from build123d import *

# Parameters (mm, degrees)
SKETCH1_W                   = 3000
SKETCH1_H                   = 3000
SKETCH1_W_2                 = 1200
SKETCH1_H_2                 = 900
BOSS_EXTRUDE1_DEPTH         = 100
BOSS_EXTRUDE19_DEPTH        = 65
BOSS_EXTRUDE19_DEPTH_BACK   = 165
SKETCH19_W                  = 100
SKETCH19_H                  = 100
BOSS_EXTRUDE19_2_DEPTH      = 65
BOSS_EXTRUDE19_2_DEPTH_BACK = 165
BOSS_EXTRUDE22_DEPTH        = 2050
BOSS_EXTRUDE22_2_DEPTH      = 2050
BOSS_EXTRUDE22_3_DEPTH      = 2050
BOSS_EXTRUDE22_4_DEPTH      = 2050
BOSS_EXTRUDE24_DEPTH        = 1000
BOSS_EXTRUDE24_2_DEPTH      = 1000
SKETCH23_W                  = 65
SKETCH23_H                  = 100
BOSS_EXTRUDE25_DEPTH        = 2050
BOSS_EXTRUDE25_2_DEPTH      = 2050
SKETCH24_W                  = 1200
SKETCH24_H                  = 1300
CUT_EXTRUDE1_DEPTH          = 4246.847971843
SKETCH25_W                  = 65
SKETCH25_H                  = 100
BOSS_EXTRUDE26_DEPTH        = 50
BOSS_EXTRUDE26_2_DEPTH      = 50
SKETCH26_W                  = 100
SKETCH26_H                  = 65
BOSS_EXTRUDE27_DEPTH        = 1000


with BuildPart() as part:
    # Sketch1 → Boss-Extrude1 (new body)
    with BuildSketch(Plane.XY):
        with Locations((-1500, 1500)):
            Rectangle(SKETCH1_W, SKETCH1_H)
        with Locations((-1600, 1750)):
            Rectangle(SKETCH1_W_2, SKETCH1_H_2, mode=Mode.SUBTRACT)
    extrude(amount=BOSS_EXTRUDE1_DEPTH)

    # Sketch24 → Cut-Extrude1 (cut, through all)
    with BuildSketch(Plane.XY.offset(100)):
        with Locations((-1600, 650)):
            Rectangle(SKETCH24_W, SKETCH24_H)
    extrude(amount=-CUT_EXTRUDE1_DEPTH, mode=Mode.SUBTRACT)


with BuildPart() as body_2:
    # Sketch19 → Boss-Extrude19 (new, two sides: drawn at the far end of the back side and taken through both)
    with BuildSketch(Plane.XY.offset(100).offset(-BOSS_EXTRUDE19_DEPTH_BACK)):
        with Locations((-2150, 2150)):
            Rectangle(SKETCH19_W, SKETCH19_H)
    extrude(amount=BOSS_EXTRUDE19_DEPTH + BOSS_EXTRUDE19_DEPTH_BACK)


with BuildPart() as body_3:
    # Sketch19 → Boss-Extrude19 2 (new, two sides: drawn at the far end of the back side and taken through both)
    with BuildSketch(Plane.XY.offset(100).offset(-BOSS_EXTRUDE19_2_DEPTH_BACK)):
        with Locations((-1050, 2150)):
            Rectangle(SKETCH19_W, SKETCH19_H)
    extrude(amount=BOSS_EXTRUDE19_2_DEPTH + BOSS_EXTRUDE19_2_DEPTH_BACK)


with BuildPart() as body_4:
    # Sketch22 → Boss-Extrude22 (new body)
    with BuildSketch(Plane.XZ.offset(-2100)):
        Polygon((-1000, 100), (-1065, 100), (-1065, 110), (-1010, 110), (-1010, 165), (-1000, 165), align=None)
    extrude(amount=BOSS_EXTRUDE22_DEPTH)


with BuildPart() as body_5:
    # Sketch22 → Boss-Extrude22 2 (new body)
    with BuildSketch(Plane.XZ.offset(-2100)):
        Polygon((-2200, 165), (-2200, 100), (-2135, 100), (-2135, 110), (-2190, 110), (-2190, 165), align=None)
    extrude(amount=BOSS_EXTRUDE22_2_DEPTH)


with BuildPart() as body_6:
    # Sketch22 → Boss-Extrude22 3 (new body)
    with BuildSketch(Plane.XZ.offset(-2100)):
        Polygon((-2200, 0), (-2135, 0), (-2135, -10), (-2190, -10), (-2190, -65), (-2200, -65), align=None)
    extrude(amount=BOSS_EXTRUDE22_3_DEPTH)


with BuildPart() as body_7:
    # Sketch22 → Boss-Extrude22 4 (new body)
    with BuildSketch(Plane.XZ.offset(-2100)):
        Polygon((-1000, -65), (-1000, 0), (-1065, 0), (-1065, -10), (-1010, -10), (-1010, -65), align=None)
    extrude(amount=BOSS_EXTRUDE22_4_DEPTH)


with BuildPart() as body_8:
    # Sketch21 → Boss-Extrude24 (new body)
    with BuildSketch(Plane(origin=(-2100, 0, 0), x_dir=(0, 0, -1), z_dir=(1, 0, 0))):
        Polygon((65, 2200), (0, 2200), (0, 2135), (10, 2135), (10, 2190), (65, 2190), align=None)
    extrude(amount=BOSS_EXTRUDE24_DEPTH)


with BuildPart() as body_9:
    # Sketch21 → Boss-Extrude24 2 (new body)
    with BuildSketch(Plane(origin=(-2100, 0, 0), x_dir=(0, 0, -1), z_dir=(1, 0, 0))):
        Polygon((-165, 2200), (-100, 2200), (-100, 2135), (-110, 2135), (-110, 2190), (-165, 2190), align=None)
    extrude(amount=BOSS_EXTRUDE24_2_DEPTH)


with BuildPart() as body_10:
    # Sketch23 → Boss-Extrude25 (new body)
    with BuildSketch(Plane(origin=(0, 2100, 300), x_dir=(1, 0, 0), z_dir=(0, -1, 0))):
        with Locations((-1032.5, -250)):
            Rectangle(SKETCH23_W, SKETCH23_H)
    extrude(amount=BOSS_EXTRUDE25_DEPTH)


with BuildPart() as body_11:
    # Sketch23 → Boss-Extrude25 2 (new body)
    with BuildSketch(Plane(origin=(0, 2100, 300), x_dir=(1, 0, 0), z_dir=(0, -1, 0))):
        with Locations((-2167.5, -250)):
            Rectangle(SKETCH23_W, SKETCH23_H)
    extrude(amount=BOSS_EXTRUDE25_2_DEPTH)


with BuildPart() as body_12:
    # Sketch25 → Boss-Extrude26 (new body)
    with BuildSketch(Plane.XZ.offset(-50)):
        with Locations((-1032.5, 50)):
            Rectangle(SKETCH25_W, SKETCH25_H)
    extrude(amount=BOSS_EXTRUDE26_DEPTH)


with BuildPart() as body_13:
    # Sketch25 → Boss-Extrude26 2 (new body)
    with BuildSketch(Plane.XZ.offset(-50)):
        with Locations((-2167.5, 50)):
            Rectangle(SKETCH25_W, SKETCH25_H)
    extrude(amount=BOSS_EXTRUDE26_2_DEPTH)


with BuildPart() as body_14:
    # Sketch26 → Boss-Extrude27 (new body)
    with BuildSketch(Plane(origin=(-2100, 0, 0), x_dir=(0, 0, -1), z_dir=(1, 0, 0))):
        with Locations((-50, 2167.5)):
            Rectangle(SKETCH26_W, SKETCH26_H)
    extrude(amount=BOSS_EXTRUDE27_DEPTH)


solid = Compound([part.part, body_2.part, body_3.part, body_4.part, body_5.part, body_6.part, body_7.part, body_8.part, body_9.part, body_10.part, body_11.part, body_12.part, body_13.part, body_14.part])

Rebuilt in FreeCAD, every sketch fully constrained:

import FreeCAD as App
import Part
import Sketcher

doc = App.newDocument("Part")
body = doc.addObject("PartDesign::Body", "Body")

# Sketch on XY plane
sketch1 = body.newObject("Sketcher::SketchObject", "Sketch")
sketch1.AttachmentSupport = (doc.getObject("XY_Plane"), [""])
sketch1.MapMode = "FlatFace"
sketch1.addGeometry([
    Part.LineSegment(App.Vector(-3000, 3000, 0), App.Vector(-3000, 0, 0)),  # 0
    Part.LineSegment(App.Vector(-3000, 0, 0), App.Vector(0, 0, 0)),  # 1
    Part.LineSegment(App.Vector(0, 0, 0), App.Vector(0, 3000, 0)),  # 2
    Part.LineSegment(App.Vector(0, 3000, 0), App.Vector(-3000, 3000, 0)),  # 3
    Part.LineSegment(App.Vector(-1000, 1300, 0), App.Vector(-2200, 1300, 0)),  # 4
    Part.LineSegment(App.Vector(-2200, 1300, 0), App.Vector(-2200, 2200, 0)),  # 5
    Part.LineSegment(App.Vector(-2200, 2200, 0), App.Vector(-1000, 2200, 0)),  # 6
    Part.LineSegment(App.Vector(-1000, 2200, 0), App.Vector(-1000, 1300, 0)),  # 7
], False)
sketch1.addConstraint([
    Sketcher.Constraint("Coincident", 0, 2, 1, 1),
    Sketcher.Constraint("Coincident", 1, 2, 2, 1),
    Sketcher.Constraint("Coincident", 2, 2, 3, 1),
    Sketcher.Constraint("Coincident", 3, 2, 0, 1),
    Sketcher.Constraint("Coincident", 4, 2, 5, 1),
    Sketcher.Constraint("Coincident", 5, 2, 6, 1),
    Sketcher.Constraint("Coincident", 6, 2, 7, 1),
    Sketcher.Constraint("Coincident", 7, 2, 4, 1),
    Sketcher.Constraint("Vertical", 0),
    Sketcher.Constraint("Horizontal", 1),
    Sketcher.Constraint("Vertical", 2),
    Sketcher.Constraint("Horizontal", 3),
    Sketcher.Constraint("Horizontal", 4),
    Sketcher.Constraint("Vertical", 5),
    Sketcher.Constraint("Horizontal", 6),
    Sketcher.Constraint("Vertical", 7),
    Sketcher.Constraint("Coincident", 1, 2, -1, 1),
    Sketcher.Constraint("Equal", 3, 0),
    Sketcher.Constraint("DistanceX", 1, 1, 1, 2, 3000.0),
    Sketcher.Constraint("DistanceX", 4, 2, 4, 1, 1200.0),
    Sketcher.Constraint("DistanceY", 5, 1, 5, 2, 900.0),
    Sketcher.Constraint("DistanceX", 4, 2, -1, 1, 2200.0),
    Sketcher.Constraint("DistanceY", -1, 1, 4, 2, 1300.0),
])
pad1 = body.newObject("PartDesign::Pad", "Pad")
pad1.Profile = sketch1
pad1.Length = 100

# Sketch on XY plane
sketch2 = body.newObject("Sketcher::SketchObject", "Sketch001")
sketch2.AttachmentSupport = (doc.getObject("XY_Plane"), [""])
sketch2.MapMode = "FlatFace"
sketch2.AttachmentOffset = App.Placement(App.Vector(0, 0, 100), App.Rotation())
sketch2.addGeometry([
    Part.LineSegment(App.Vector(-2200, 1300, 0), App.Vector(-2200, 0, 0)),
    Part.LineSegment(App.Vector(-2200, 0, 0), App.Vector(-1000, 0, 0)),
    Part.LineSegment(App.Vector(-1000, 0, 0), App.Vector(-1000, 1300, 0)),
    Part.LineSegment(App.Vector(-1000, 1300, 0), App.Vector(-2200, 1300, 0)),
], False)
sketch2.addConstraint([
    Sketcher.Constraint("Coincident", 0, 2, 1, 1),
    Sketcher.Constraint("Coincident", 1, 2, 2, 1),
    Sketcher.Constraint("Coincident", 2, 2, 3, 1),
    Sketcher.Constraint("Coincident", 3, 2, 0, 1),
    Sketcher.Constraint("Vertical", 0),
    Sketcher.Constraint("Horizontal", 1),
    Sketcher.Constraint("Vertical", 2),
    Sketcher.Constraint("Horizontal", 3),
    Sketcher.Constraint("PointOnObject", 0, 2, -1),
    Sketcher.Constraint("DistanceX", 1, 1, 1, 2, 1200.0),
    Sketcher.Constraint("DistanceY", 0, 2, 0, 1, 1300.0),
    Sketcher.Constraint("DistanceX", 0, 2, -1, 1, 2200.0),
])
pocket1 = body.newObject("PartDesign::Pocket", "Pocket")
pocket1.Profile = sketch2
pocket1.Type = "ThroughAll"
body2 = doc.addObject("PartDesign::Body", "Body001")

# Sketch on XY plane
sketch3 = body2.newObject("Sketcher::SketchObject", "Sketch002")
sketch3.AttachmentSupport = (doc.getObject("XY_Plane001"), [""])
sketch3.MapMode = "FlatFace"
sketch3.AttachmentOffset = App.Placement(App.Vector(0, 0, 100), App.Rotation())
sketch3.addGeometry([
    Part.LineSegment(App.Vector(-2200, 2200, 0), App.Vector(-2200, 2100, 0)),
    Part.LineSegment(App.Vector(-2200, 2100, 0), App.Vector(-2100, 2100, 0)),
    Part.LineSegment(App.Vector(-2100, 2100, 0), App.Vector(-2100, 2200, 0)),
    Part.LineSegment(App.Vector(-2100, 2200, 0), App.Vector(-2200, 2200, 0)),
], False)
sketch3.addConstraint([
    Sketcher.Constraint("Coincident", 0, 2, 1, 1),
    Sketcher.Constraint("Coincident", 1, 2, 2, 1),
    Sketcher.Constraint("Coincident", 2, 2, 3, 1),
    Sketcher.Constraint("Coincident", 3, 2, 0, 1),
    Sketcher.Constraint("Vertical", 0),
    Sketcher.Constraint("Horizontal", 1),
    Sketcher.Constraint("Vertical", 2),
    Sketcher.Constraint("Horizontal", 3),
    Sketcher.Constraint("Equal", 3, 0),
    Sketcher.Constraint("DistanceX", 1, 1, 1, 2, 100.0),
    Sketcher.Constraint("DistanceX", 0, 2, -1, 1, 2200.0),
    Sketcher.Constraint("DistanceY", -1, 1, 0, 2, 2100.0),
])
pad2 = body2.newObject("PartDesign::Pad", "Pad001")
pad2.Profile = sketch3
pad2.Type = "TwoLengths"
pad2.Length = 65
pad2.Length2 = 165
body3 = doc.addObject("PartDesign::Body", "Body002")

# Sketch on XY plane
sketch4 = body3.newObject("Sketcher::SketchObject", "Sketch003")
sketch4.AttachmentSupport = (doc.getObject("XY_Plane002"), [""])
sketch4.MapMode = "FlatFace"
sketch4.AttachmentOffset = App.Placement(App.Vector(0, 0, 100), App.Rotation())
sketch4.addGeometry([
    Part.LineSegment(App.Vector(-1100, 2200, 0), App.Vector(-1100, 2100, 0)),
    Part.LineSegment(App.Vector(-1100, 2100, 0), App.Vector(-1000, 2100, 0)),
    Part.LineSegment(App.Vector(-1000, 2100, 0), App.Vector(-1000, 2200, 0)),
    Part.LineSegment(App.Vector(-1000, 2200, 0), App.Vector(-1100, 2200, 0)),
], False)
sketch4.addConstraint([
    Sketcher.Constraint("Coincident", 0, 2, 1, 1),
    Sketcher.Constraint("Coincident", 1, 2, 2, 1),
    Sketcher.Constraint("Coincident", 2, 2, 3, 1),
    Sketcher.Constraint("Coincident", 3, 2, 0, 1),
    Sketcher.Constraint("Vertical", 0),
    Sketcher.Constraint("Horizontal", 1),
    Sketcher.Constraint("Vertical", 2),
    Sketcher.Constraint("Horizontal", 3),
    Sketcher.Constraint("Equal", 3, 0),
    Sketcher.Constraint("DistanceX", 1, 1, 1, 2, 100.0),
    Sketcher.Constraint("DistanceX", 0, 2, -1, 1, 1100.0),
    Sketcher.Constraint("DistanceY", -1, 1, 0, 2, 2100.0),
])
pad3 = body3.newObject("PartDesign::Pad", "Pad002")
pad3.Profile = sketch4
pad3.Type = "TwoLengths"
pad3.Length = 65
pad3.Length2 = 165
body4 = doc.addObject("PartDesign::Body", "Body003")

# Sketch on XZ plane
sketch5 = body4.newObject("Sketcher::SketchObject", "Sketch004")
sketch5.AttachmentSupport = (doc.getObject("XZ_Plane003"), [""])
sketch5.MapMode = "FlatFace"
sketch5.AttachmentOffset = App.Placement(App.Vector(0, 0, -2100), App.Rotation())
sketch5.addGeometry([
    Part.LineSegment(App.Vector(-1065, 100, 0), App.Vector(-1000, 100, 0)),  # 0
    Part.LineSegment(App.Vector(-1000, 100, 0), App.Vector(-1000, 165, 0)),  # 1
    Part.LineSegment(App.Vector(-1000, 165, 0), App.Vector(-1010, 165, 0)),  # 2
    Part.LineSegment(App.Vector(-1010, 165, 0), App.Vector(-1010, 110, 0)),  # 3
    Part.LineSegment(App.Vector(-1010, 110, 0), App.Vector(-1065, 110, 0)),  # 4
    Part.LineSegment(App.Vector(-1065, 110, 0), App.Vector(-1065, 100, 0)),  # 5
], False)
sketch5.addConstraint([
    Sketcher.Constraint("Coincident", 0, 2, 1, 1),
    Sketcher.Constraint("Coincident", 1, 2, 2, 1),
    Sketcher.Constraint("Coincident", 2, 2, 3, 1),
    Sketcher.Constraint("Coincident", 3, 2, 4, 1),
    Sketcher.Constraint("Coincident", 4, 2, 5, 1),
    Sketcher.Constraint("Coincident", 5, 2, 0, 1),
    Sketcher.Constraint("Horizontal", 0),
    Sketcher.Constraint("Vertical", 1),
    Sketcher.Constraint("Horizontal", 2),
    Sketcher.Constraint("Vertical", 3),
    Sketcher.Constraint("Horizontal", 4),
    Sketcher.Constraint("Vertical", 5),
    Sketcher.Constraint("Equal", 0, 1),
    Sketcher.Constraint("Equal", 4, 3),
    Sketcher.Constraint("DistanceX", 0, 1, 0, 2, 65.0),
    Sketcher.Constraint("DistanceX", 2, 2, 2, 1, 10.0),
    Sketcher.Constraint("DistanceX", 0, 2, -1, 1, 1000.0),
    Sketcher.Constraint("DistanceY", -1, 1, 0, 2, 100.0),
])
pad4 = body4.newObject("PartDesign::Pad", "Pad003")
pad4.Profile = sketch5
pad4.Length = 2050
body5 = doc.addObject("PartDesign::Body", "Body004")

# Sketch on XZ plane
sketch6 = body5.newObject("Sketcher::SketchObject", "Sketch005")
sketch6.AttachmentSupport = (doc.getObject("XZ_Plane004"), [""])
sketch6.MapMode = "FlatFace"
sketch6.AttachmentOffset = App.Placement(App.Vector(0, 0, -2100), App.Rotation())
sketch6.addGeometry([
    Part.LineSegment(App.Vector(-2200, 165, 0), App.Vector(-2200, 100, 0)),  # 0
    Part.LineSegment(App.Vector(-2200, 100, 0), App.Vector(-2135, 100, 0)),  # 1
    Part.LineSegment(App.Vector(-2135, 100, 0), App.Vector(-2135, 110, 0)),  # 2
    Part.LineSegment(App.Vector(-2135, 110, 0), App.Vector(-2190, 110, 0)),  # 3
    Part.LineSegment(App.Vector(-2190, 110, 0), App.Vector(-2190, 165, 0)),  # 4
    Part.LineSegment(App.Vector(-2190, 165, 0), App.Vector(-2200, 165, 0)),  # 5
], False)
sketch6.addConstraint([
    Sketcher.Constraint("Coincident", 0, 2, 1, 1),
    Sketcher.Constraint("Coincident", 1, 2, 2, 1),
    Sketcher.Constraint("Coincident", 2, 2, 3, 1),
    Sketcher.Constraint("Coincident", 3, 2, 4, 1),
    Sketcher.Constraint("Coincident", 4, 2, 5, 1),
    Sketcher.Constraint("Coincident", 5, 2, 0, 1),
    Sketcher.Constraint("Vertical", 0),
    Sketcher.Constraint("Horizontal", 1),
    Sketcher.Constraint("Vertical", 2),
    Sketcher.Constraint("Horizontal", 3),
    Sketcher.Constraint("Vertical", 4),
    Sketcher.Constraint("Horizontal", 5),
    Sketcher.Constraint("Equal", 1, 0),
    Sketcher.Constraint("Equal", 5, 2),
    Sketcher.Constraint("DistanceX", 1, 1, 1, 2, 65.0),
    Sketcher.Constraint("DistanceX", 3, 2, 3, 1, 55.0),
    Sketcher.Constraint("DistanceX", 0, 2, -1, 1, 2200.0),
    Sketcher.Constraint("DistanceY", -1, 1, 0, 2, 100.0),
])
pad5 = body5.newObject("PartDesign::Pad", "Pad004")
pad5.Profile = sketch6
pad5.Length = 2050
body6 = doc.addObject("PartDesign::Body", "Body005")

# Sketch on XZ plane
sketch7 = body6.newObject("Sketcher::SketchObject", "Sketch006")
sketch7.AttachmentSupport = (doc.getObject("XZ_Plane005"), [""])
sketch7.MapMode = "FlatFace"
sketch7.AttachmentOffset = App.Placement(App.Vector(0, 0, -2100), App.Rotation())
sketch7.addGeometry([
    Part.LineSegment(App.Vector(-2135, 0, 0), App.Vector(-2200, 0, 0)),  # 0
    Part.LineSegment(App.Vector(-2200, 0, 0), App.Vector(-2200, -65, 0)),  # 1
    Part.LineSegment(App.Vector(-2200, -65, 0), App.Vector(-2190, -65, 0)),  # 2
    Part.LineSegment(App.Vector(-2190, -65, 0), App.Vector(-2190, -10, 0)),  # 3
    Part.LineSegment(App.Vector(-2190, -10, 0), App.Vector(-2135, -10, 0)),  # 4
    Part.LineSegment(App.Vector(-2135, -10, 0), App.Vector(-2135, 0, 0)),  # 5
], False)
sketch7.addConstraint([
    Sketcher.Constraint("Coincident", 0, 2, 1, 1),
    Sketcher.Constraint("Coincident", 1, 2, 2, 1),
    Sketcher.Constraint("Coincident", 2, 2, 3, 1),
    Sketcher.Constraint("Coincident", 3, 2, 4, 1),
    Sketcher.Constraint("Coincident", 4, 2, 5, 1),
    Sketcher.Constraint("Coincident", 5, 2, 0, 1),
    Sketcher.Constraint("Horizontal", 0),
    Sketcher.Constraint("Vertical", 1),
    Sketcher.Constraint("Horizontal", 2),
    Sketcher.Constraint("Vertical", 3),
    Sketcher.Constraint("Horizontal", 4),
    Sketcher.Constraint("Vertical", 5),
    Sketcher.Constraint("PointOnObject", 0, 2, -1),
    Sketcher.Constraint("Equal", 0, 1),
    Sketcher.Constraint("Equal", 4, 3),
    Sketcher.Constraint("DistanceX", 0, 2, 0, 1, 65.0),
    Sketcher.Constraint("DistanceX", 2, 1, 2, 2, 10.0),
    Sketcher.Constraint("DistanceX", 0, 2, -1, 1, 2200.0),
])
pad6 = body6.newObject("PartDesign::Pad", "Pad005")
pad6.Profile = sketch7
pad6.Length = 2050
body7 = doc.addObject("PartDesign::Body", "Body006")

# Sketch on XZ plane
sketch8 = body7.newObject("Sketcher::SketchObject", "Sketch007")
sketch8.AttachmentSupport = (doc.getObject("XZ_Plane006"), [""])
sketch8.MapMode = "FlatFace"
sketch8.AttachmentOffset = App.Placement(App.Vector(0, 0, -2100), App.Rotation())
sketch8.addGeometry([
    Part.LineSegment(App.Vector(-1000, -65, 0), App.Vector(-1000, 0, 0)),  # 0
    Part.LineSegment(App.Vector(-1000, 0, 0), App.Vector(-1065, 0, 0)),  # 1
    Part.LineSegment(App.Vector(-1065, 0, 0), App.Vector(-1065, -10, 0)),  # 2
    Part.LineSegment(App.Vector(-1065, -10, 0), App.Vector(-1010, -10, 0)),  # 3
    Part.LineSegment(App.Vector(-1010, -10, 0), App.Vector(-1010, -65, 0)),  # 4
    Part.LineSegment(App.Vector(-1010, -65, 0), App.Vector(-1000, -65, 0)),  # 5
], False)
sketch8.addConstraint([
    Sketcher.Constraint("Coincident", 0, 2, 1, 1),
    Sketcher.Constraint("Coincident", 1, 2, 2, 1),
    Sketcher.Constraint("Coincident", 2, 2, 3, 1),
    Sketcher.Constraint("Coincident", 3, 2, 4, 1),
    Sketcher.Constraint("Coincident", 4, 2, 5, 1),
    Sketcher.Constraint("Coincident", 5, 2, 0, 1),
    Sketcher.Constraint("Vertical", 0),
    Sketcher.Constraint("Horizontal", 1),
    Sketcher.Constraint("Vertical", 2),
    Sketcher.Constraint("Horizontal", 3),
    Sketcher.Constraint("Vertical", 4),
    Sketcher.Constraint("Horizontal", 5),
    Sketcher.Constraint("PointOnObject", 0, 2, -1),
    Sketcher.Constraint("Equal", 1, 0),
    Sketcher.Constraint("Equal", 5, 2),
    Sketcher.Constraint("DistanceX", 1, 2, 1, 1, 65.0),
    Sketcher.Constraint("DistanceX", 3, 1, 3, 2, 55.0),
    Sketcher.Constraint("DistanceX", 0, 2, -1, 1, 1000.0),
])
pad7 = body7.newObject("PartDesign::Pad", "Pad006")
pad7.Profile = sketch8
pad7.Length = 2050
body8 = doc.addObject("PartDesign::Body", "Body007")

# Sketch on YZ plane
sketch9 = body8.newObject("Sketcher::SketchObject", "Sketch008")
sketch9.AttachmentSupport = (doc.getObject("YZ_Plane007"), [""])
sketch9.MapMode = "FlatFace"
sketch9.AttachmentOffset = App.Placement(App.Vector(0, 0, -2100), App.Rotation())
sketch9.addGeometry([
    Part.LineSegment(App.Vector(2200, -65, 0), App.Vector(2200, 0, 0)),  # 0
    Part.LineSegment(App.Vector(2200, 0, 0), App.Vector(2135, 0, 0)),  # 1
    Part.LineSegment(App.Vector(2135, 0, 0), App.Vector(2135, -10, 0)),  # 2
    Part.LineSegment(App.Vector(2135, -10, 0), App.Vector(2190, -10, 0)),  # 3
    Part.LineSegment(App.Vector(2190, -10, 0), App.Vector(2190, -65, 0)),  # 4
    Part.LineSegment(App.Vector(2190, -65, 0), App.Vector(2200, -65, 0)),  # 5
], False)
sketch9.addConstraint([
    Sketcher.Constraint("Coincident", 0, 2, 1, 1),
    Sketcher.Constraint("Coincident", 1, 2, 2, 1),
    Sketcher.Constraint("Coincident", 2, 2, 3, 1),
    Sketcher.Constraint("Coincident", 3, 2, 4, 1),
    Sketcher.Constraint("Coincident", 4, 2, 5, 1),
    Sketcher.Constraint("Coincident", 5, 2, 0, 1),
    Sketcher.Constraint("Vertical", 0),
    Sketcher.Constraint("Horizontal", 1),
    Sketcher.Constraint("Vertical", 2),
    Sketcher.Constraint("Horizontal", 3),
    Sketcher.Constraint("Vertical", 4),
    Sketcher.Constraint("Horizontal", 5),
    Sketcher.Constraint("PointOnObject", 0, 2, -1),
    Sketcher.Constraint("Equal", 1, 0),
    Sketcher.Constraint("Equal", 5, 2),
    Sketcher.Constraint("DistanceX", 1, 2, 1, 1, 65.0),
    Sketcher.Constraint("DistanceX", 3, 1, 3, 2, 55.0),
    Sketcher.Constraint("DistanceX", -1, 1, 0, 2, 2200.0),
])
pad8 = body8.newObject("PartDesign::Pad", "Pad007")
pad8.Profile = sketch9
pad8.Length = 1000
body9 = doc.addObject("PartDesign::Body", "Body008")

# Sketch on YZ plane
sketch10 = body9.newObject("Sketcher::SketchObject", "Sketch009")
sketch10.AttachmentSupport = (doc.getObject("YZ_Plane008"), [""])
sketch10.MapMode = "FlatFace"
sketch10.AttachmentOffset = App.Placement(App.Vector(0, 0, -2100), App.Rotation())
sketch10.addGeometry([
    Part.LineSegment(App.Vector(2200, 100, 0), App.Vector(2200, 165, 0)),  # 0
    Part.LineSegment(App.Vector(2200, 165, 0), App.Vector(2190, 165, 0)),  # 1
    Part.LineSegment(App.Vector(2190, 165, 0), App.Vector(2190, 110, 0)),  # 2
    Part.LineSegment(App.Vector(2190, 110, 0), App.Vector(2135, 110, 0)),  # 3
    Part.LineSegment(App.Vector(2135, 110, 0), App.Vector(2135, 100, 0)),  # 4
    Part.LineSegment(App.Vector(2135, 100, 0), App.Vector(2200, 100, 0)),  # 5
], False)
sketch10.addConstraint([
    Sketcher.Constraint("Coincident", 0, 2, 1, 1),
    Sketcher.Constraint("Coincident", 1, 2, 2, 1),
    Sketcher.Constraint("Coincident", 2, 2, 3, 1),
    Sketcher.Constraint("Coincident", 3, 2, 4, 1),
    Sketcher.Constraint("Coincident", 4, 2, 5, 1),
    Sketcher.Constraint("Coincident", 5, 2, 0, 1),
    Sketcher.Constraint("Vertical", 0),
    Sketcher.Constraint("Horizontal", 1),
    Sketcher.Constraint("Vertical", 2),
    Sketcher.Constraint("Horizontal", 3),
    Sketcher.Constraint("Vertical", 4),
    Sketcher.Constraint("Horizontal", 5),
    Sketcher.Constraint("Equal", 5, 0),
    Sketcher.Constraint("Equal", 3, 2),
    Sketcher.Constraint("DistanceX", 1, 2, 1, 1, 10.0),
    Sketcher.Constraint("DistanceX", 3, 2, 3, 1, 55.0),
    Sketcher.Constraint("DistanceX", -1, 1, 0, 2, 2200.0),
    Sketcher.Constraint("DistanceY", -1, 1, 0, 2, 165.0),
])
pad9 = body9.newObject("PartDesign::Pad", "Pad008")
pad9.Profile = sketch10
pad9.Length = 1000
body10 = doc.addObject("PartDesign::Body", "Body009")

# Sketch on XZ plane
sketch11 = body10.newObject("Sketcher::SketchObject", "Sketch010")
sketch11.AttachmentSupport = (doc.getObject("XZ_Plane009"), [""])
sketch11.MapMode = "FlatFace"
sketch11.AttachmentOffset = App.Placement(App.Vector(0, 0, -2100), App.Rotation())
sketch11.addGeometry([
    Part.LineSegment(App.Vector(-1065, 100, 0), App.Vector(-1065, 0, 0)),
    Part.LineSegment(App.Vector(-1065, 0, 0), App.Vector(-1000, 0, 0)),
    Part.LineSegment(App.Vector(-1000, 0, 0), App.Vector(-1000, 100, 0)),
    Part.LineSegment(App.Vector(-1000, 100, 0), App.Vector(-1065, 100, 0)),
], False)
sketch11.addConstraint([
    Sketcher.Constraint("Coincident", 0, 2, 1, 1),
    Sketcher.Constraint("Coincident", 1, 2, 2, 1),
    Sketcher.Constraint("Coincident", 2, 2, 3, 1),
    Sketcher.Constraint("Coincident", 3, 2, 0, 1),
    Sketcher.Constraint("Vertical", 0),
    Sketcher.Constraint("Horizontal", 1),
    Sketcher.Constraint("Vertical", 2),
    Sketcher.Constraint("Horizontal", 3),
    Sketcher.Constraint("PointOnObject", 0, 2, -1),
    Sketcher.Constraint("DistanceX", 1, 1, 1, 2, 65.0),
    Sketcher.Constraint("DistanceY", 0, 2, 0, 1, 100.0),
    Sketcher.Constraint("DistanceX", 0, 2, -1, 1, 1065.0),
])
pad10 = body10.newObject("PartDesign::Pad", "Pad009")
pad10.Profile = sketch11
pad10.Length = 2050
body11 = doc.addObject("PartDesign::Body", "Body010")

# Sketch on XZ plane
sketch12 = body11.newObject("Sketcher::SketchObject", "Sketch011")
sketch12.AttachmentSupport = (doc.getObject("XZ_Plane010"), [""])
sketch12.MapMode = "FlatFace"
sketch12.AttachmentOffset = App.Placement(App.Vector(0, 0, -2100), App.Rotation())
sketch12.addGeometry([
    Part.LineSegment(App.Vector(-2200, 100, 0), App.Vector(-2200, 0, 0)),
    Part.LineSegment(App.Vector(-2200, 0, 0), App.Vector(-2135, 0, 0)),
    Part.LineSegment(App.Vector(-2135, 0, 0), App.Vector(-2135, 100, 0)),
    Part.LineSegment(App.Vector(-2135, 100, 0), App.Vector(-2200, 100, 0)),
], False)
sketch12.addConstraint([
    Sketcher.Constraint("Coincident", 0, 2, 1, 1),
    Sketcher.Constraint("Coincident", 1, 2, 2, 1),
    Sketcher.Constraint("Coincident", 2, 2, 3, 1),
    Sketcher.Constraint("Coincident", 3, 2, 0, 1),
    Sketcher.Constraint("Vertical", 0),
    Sketcher.Constraint("Horizontal", 1),
    Sketcher.Constraint("Vertical", 2),
    Sketcher.Constraint("Horizontal", 3),
    Sketcher.Constraint("PointOnObject", 0, 2, -1),
    Sketcher.Constraint("DistanceX", 1, 1, 1, 2, 65.0),
    Sketcher.Constraint("DistanceY", 0, 2, 0, 1, 100.0),
    Sketcher.Constraint("DistanceX", 0, 2, -1, 1, 2200.0),
])
pad11 = body11.newObject("PartDesign::Pad", "Pad010")
pad11.Profile = sketch12
pad11.Length = 2050
body12 = doc.addObject("PartDesign::Body", "Body011")

# Sketch on XZ plane
sketch13 = body12.newObject("Sketcher::SketchObject", "Sketch012")
sketch13.AttachmentSupport = (doc.getObject("XZ_Plane011"), [""])
sketch13.MapMode = "FlatFace"
sketch13.AttachmentOffset = App.Placement(App.Vector(0, 0, -50), App.Rotation())
sketch13.addGeometry([
    Part.LineSegment(App.Vector(-1065, 100, 0), App.Vector(-1065, 0, 0)),
    Part.LineSegment(App.Vector(-1065, 0, 0), App.Vector(-1000, 0, 0)),
    Part.LineSegment(App.Vector(-1000, 0, 0), App.Vector(-1000, 100, 0)),
    Part.LineSegment(App.Vector(-1000, 100, 0), App.Vector(-1065, 100, 0)),
], False)
sketch13.addConstraint([
    Sketcher.Constraint("Coincident", 0, 2, 1, 1),
    Sketcher.Constraint("Coincident", 1, 2, 2, 1),
    Sketcher.Constraint("Coincident", 2, 2, 3, 1),
    Sketcher.Constraint("Coincident", 3, 2, 0, 1),
    Sketcher.Constraint("Vertical", 0),
    Sketcher.Constraint("Horizontal", 1),
    Sketcher.Constraint("Vertical", 2),
    Sketcher.Constraint("Horizontal", 3),
    Sketcher.Constraint("PointOnObject", 0, 2, -1),
    Sketcher.Constraint("DistanceX", 1, 1, 1, 2, 65.0),
    Sketcher.Constraint("DistanceY", 0, 2, 0, 1, 100.0),
    Sketcher.Constraint("DistanceX", 0, 2, -1, 1, 1065.0),
])
pad12 = body12.newObject("PartDesign::Pad", "Pad011")
pad12.Profile = sketch13
pad12.Length = 50
body13 = doc.addObject("PartDesign::Body", "Body012")

# Sketch on XZ plane
sketch14 = body13.newObject("Sketcher::SketchObject", "Sketch013")
sketch14.AttachmentSupport = (doc.getObject("XZ_Plane012"), [""])
sketch14.MapMode = "FlatFace"
sketch14.AttachmentOffset = App.Placement(App.Vector(0, 0, -50), App.Rotation())
sketch14.addGeometry([
    Part.LineSegment(App.Vector(-2200, 100, 0), App.Vector(-2200, 0, 0)),
    Part.LineSegment(App.Vector(-2200, 0, 0), App.Vector(-2135, 0, 0)),
    Part.LineSegment(App.Vector(-2135, 0, 0), App.Vector(-2135, 100, 0)),
    Part.LineSegment(App.Vector(-2135, 100, 0), App.Vector(-2200, 100, 0)),
], False)
sketch14.addConstraint([
    Sketcher.Constraint("Coincident", 0, 2, 1, 1),
    Sketcher.Constraint("Coincident", 1, 2, 2, 1),
    Sketcher.Constraint("Coincident", 2, 2, 3, 1),
    Sketcher.Constraint("Coincident", 3, 2, 0, 1),
    Sketcher.Constraint("Vertical", 0),
    Sketcher.Constraint("Horizontal", 1),
    Sketcher.Constraint("Vertical", 2),
    Sketcher.Constraint("Horizontal", 3),
    Sketcher.Constraint("PointOnObject", 0, 2, -1),
    Sketcher.Constraint("DistanceX", 1, 1, 1, 2, 65.0),
    Sketcher.Constraint("DistanceY", 0, 2, 0, 1, 100.0),
    Sketcher.Constraint("DistanceX", 0, 2, -1, 1, 2200.0),
])
pad13 = body13.newObject("PartDesign::Pad", "Pad012")
pad13.Profile = sketch14
pad13.Length = 50
body14 = doc.addObject("PartDesign::Body", "Body013")

# Sketch on YZ plane
sketch15 = body14.newObject("Sketcher::SketchObject", "Sketch014")
sketch15.AttachmentSupport = (doc.getObject("YZ_Plane013"), [""])
sketch15.MapMode = "FlatFace"
sketch15.AttachmentOffset = App.Placement(App.Vector(0, 0, -2100), App.Rotation())
sketch15.addGeometry([
    Part.LineSegment(App.Vector(2200, 100, 0), App.Vector(2135, 100, 0)),
    Part.LineSegment(App.Vector(2135, 100, 0), App.Vector(2135, 0, 0)),
    Part.LineSegment(App.Vector(2135, 0, 0), App.Vector(2200, 0, 0)),
    Part.LineSegment(App.Vector(2200, 0, 0), App.Vector(2200, 100, 0)),
], False)
sketch15.addConstraint([
    Sketcher.Constraint("Coincident", 0, 2, 1, 1),
    Sketcher.Constraint("Coincident", 1, 2, 2, 1),
    Sketcher.Constraint("Coincident", 2, 2, 3, 1),
    Sketcher.Constraint("Coincident", 3, 2, 0, 1),
    Sketcher.Constraint("Horizontal", 0),
    Sketcher.Constraint("Vertical", 1),
    Sketcher.Constraint("Horizontal", 2),
    Sketcher.Constraint("Vertical", 3),
    Sketcher.Constraint("PointOnObject", 1, 2, -1),
    Sketcher.Constraint("DistanceX", 0, 2, 0, 1, 65.0),
    Sketcher.Constraint("DistanceY", 1, 2, 1, 1, 100.0),
    Sketcher.Constraint("DistanceX", -1, 1, 0, 2, 2135.0),
])
pad14 = body14.newObject("PartDesign::Pad", "Pad013")
pad14.Profile = sketch15
pad14.Length = 1000

doc.recompute()
